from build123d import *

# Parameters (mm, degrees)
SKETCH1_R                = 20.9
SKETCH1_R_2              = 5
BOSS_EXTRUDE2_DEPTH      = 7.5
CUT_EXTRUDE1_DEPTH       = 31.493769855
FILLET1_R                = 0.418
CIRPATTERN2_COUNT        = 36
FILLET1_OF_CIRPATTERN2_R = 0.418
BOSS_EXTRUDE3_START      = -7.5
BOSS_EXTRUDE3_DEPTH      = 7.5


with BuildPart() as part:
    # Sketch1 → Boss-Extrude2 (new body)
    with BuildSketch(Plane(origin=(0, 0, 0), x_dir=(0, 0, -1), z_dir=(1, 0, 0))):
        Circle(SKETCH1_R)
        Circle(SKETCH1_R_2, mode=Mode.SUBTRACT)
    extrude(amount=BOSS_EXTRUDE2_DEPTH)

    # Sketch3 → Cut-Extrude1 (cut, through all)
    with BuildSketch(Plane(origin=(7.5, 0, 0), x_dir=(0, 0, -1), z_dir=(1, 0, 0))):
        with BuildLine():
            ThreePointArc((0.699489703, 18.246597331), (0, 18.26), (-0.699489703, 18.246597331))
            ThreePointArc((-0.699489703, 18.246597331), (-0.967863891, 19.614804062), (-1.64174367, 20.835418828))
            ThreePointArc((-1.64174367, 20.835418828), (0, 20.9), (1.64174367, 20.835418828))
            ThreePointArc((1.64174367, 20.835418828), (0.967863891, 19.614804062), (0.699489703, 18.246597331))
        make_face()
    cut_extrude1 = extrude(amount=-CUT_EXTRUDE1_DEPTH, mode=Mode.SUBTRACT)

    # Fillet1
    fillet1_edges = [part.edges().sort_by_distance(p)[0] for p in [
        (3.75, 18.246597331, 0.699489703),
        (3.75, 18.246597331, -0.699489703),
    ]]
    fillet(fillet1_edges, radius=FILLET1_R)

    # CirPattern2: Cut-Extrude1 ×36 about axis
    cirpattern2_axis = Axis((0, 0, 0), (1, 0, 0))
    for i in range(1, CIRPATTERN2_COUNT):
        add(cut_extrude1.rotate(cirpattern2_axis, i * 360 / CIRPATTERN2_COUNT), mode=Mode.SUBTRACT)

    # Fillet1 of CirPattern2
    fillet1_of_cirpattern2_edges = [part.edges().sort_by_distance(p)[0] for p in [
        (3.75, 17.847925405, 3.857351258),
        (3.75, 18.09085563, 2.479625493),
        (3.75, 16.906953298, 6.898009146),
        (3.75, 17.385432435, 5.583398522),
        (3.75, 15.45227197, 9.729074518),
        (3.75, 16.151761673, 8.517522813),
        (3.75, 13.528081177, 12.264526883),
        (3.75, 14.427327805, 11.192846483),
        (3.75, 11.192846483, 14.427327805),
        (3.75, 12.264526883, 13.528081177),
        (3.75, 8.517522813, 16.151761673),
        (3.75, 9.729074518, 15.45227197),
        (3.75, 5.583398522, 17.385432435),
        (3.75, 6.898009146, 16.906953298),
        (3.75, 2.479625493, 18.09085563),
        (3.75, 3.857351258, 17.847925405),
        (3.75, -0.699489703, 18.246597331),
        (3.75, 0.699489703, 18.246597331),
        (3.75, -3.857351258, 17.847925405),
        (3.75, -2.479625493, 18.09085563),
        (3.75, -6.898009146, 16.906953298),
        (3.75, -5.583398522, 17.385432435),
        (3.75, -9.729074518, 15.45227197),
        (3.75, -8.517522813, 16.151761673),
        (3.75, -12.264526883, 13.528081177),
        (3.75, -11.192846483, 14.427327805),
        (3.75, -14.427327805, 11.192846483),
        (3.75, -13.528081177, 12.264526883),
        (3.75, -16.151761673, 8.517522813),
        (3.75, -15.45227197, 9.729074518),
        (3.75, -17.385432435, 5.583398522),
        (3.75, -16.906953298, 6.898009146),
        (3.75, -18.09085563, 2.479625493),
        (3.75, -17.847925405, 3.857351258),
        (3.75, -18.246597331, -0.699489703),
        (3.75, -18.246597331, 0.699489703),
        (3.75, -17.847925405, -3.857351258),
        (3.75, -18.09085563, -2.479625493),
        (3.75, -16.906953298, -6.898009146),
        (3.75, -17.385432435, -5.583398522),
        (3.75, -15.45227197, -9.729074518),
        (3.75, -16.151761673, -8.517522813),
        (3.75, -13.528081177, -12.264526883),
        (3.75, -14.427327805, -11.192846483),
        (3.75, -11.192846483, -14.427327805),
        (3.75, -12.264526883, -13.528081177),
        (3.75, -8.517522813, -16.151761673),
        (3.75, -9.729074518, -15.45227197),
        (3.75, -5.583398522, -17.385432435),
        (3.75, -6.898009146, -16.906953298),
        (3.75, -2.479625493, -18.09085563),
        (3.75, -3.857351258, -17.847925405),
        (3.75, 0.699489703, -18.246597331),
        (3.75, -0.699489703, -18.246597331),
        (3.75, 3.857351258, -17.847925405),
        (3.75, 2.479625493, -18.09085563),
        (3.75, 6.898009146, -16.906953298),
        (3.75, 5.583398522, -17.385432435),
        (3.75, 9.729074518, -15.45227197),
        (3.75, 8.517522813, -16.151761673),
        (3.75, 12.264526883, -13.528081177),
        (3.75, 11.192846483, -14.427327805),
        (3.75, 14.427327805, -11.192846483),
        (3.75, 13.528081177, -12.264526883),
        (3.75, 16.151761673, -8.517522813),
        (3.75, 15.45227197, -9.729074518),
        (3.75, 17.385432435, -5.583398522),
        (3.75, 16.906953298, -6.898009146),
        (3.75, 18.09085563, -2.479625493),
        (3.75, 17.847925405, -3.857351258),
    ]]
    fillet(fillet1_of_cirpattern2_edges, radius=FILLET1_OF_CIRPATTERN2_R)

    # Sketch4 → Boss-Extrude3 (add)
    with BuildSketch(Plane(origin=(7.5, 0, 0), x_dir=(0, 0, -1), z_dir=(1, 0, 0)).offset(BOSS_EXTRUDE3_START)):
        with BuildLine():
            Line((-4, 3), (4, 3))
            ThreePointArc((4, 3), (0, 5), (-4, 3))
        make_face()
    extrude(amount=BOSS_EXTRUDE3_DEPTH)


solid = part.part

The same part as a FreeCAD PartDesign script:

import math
import FreeCAD as App
import Part
import Sketcher

V = App.Vector
Q = App.Units.Quantity


def edges_at(feature, points):
    """Names of the edges that pass closest to the given points."""
    edges = feature.Shape.Edges
    near = lambda p: min(range(len(edges)), key=lambda i: edges[i].distToShape(Part.Vertex(*p))[0])
    return sorted({f"Edge{near(p) + 1}" for p in points})

doc = App.newDocument("Part")
params = doc.addObject("Spreadsheet::Sheet", "Params")
for row, (alias, value) in enumerate([
    ("sketch1_diameter", "10 mm"),
    ("sketch1_diameter2", "41.8 mm"),
    ("pad1_length", "7.5 mm"),
    ("sketch2_radius", "20.9 mm"),
    ("sketch2_radius2", "18.26 mm"),
    ("fillet_radius", "0.418 mm"),
    ("fillet2_radius", "0.418 mm"),
    ("sketch3_radius", "5 mm"),
    ("sketch3_height", "8 mm"),
    ("pad2_length", "7.5 mm"),
], start=1):
    params.set(f"A{row}", alias)
    params.set(f"B{row}", "=" + value)
    params.setAlias(f"B{row}", alias)

body = doc.addObject("PartDesign::Body", "Body")

sketch1 = doc.addObject("Sketcher::SketchObject", "Sketch")
body.addObject(sketch1)
sketch1.AttachmentSupport = (doc.YZ_Plane, [""])
sketch1.MapMode = "FlatFace"
sketch1.addGeometry(Part.Circle(V(0, 0, 0), V(0, 0, 1), 20.9), False)
sketch1.addGeometry(Part.Circle(V(0, 0, 0), V(0, 0, 1), 5), False)
sketch1.addConstraint(Sketcher.Constraint("Coincident", 0, 3, -1, 1))
sketch1.addConstraint(Sketcher.Constraint("Coincident", 1, 3, -1, 1))
sketch1.addConstraint(Sketcher.Constraint("Diameter", 1, Q("10 mm")))
sketch1.addConstraint(Sketcher.Constraint("Diameter", 0, Q("41.8 mm")))
sketch1.setExpression("Constraints[2]", "Params.sketch1_diameter")
sketch1.setExpression("Constraints[3]", "Params.sketch1_diameter2")
pad1 = doc.addObject("PartDesign::Pad", "Pad")
body.addObject(pad1)
pad1.Profile = sketch1
pad1.setExpression("Length", "Params.pad1_length")

sketch2 = doc.addObject("Sketcher::SketchObject", "Sketch001")
body.addObject(sketch2)
sketch2.AttachmentSupport = (doc.YZ_Plane, [""])
sketch2.MapMode = "FlatFace"
sketch2.AttachmentOffset = App.Placement(V(0, 0, 7.5), App.Rotation())
sketch2.addGeometry(Part.ArcOfCircle(Part.Circle(V(0, 0, 0), V(0, 0, 1), 18.26), math.radians(-2.195379), math.radians(2.195379)), False)
sketch2.addGeometry(Part.ArcOfCircle(Part.Circle(V(18.074026, -5.201117, 0), V(0, 0, 1), 4.504934), math.radians(52.195379), math.radians(87.804621)), False)
sketch2.addGeometry(Part.ArcOfCircle(Part.Circle(V(0, 0, 0), V(0, 0, 1), 20.9), math.radians(-4.505358), math.radians(4.505358)), False)
sketch2.addGeometry(Part.ArcOfCircle(Part.Circle(V(18.074026, 5.201117, 0), V(0, 0, 1), 4.504934), math.radians(-87.804621), math.radians(-52.195379)), False)
sketch2.addConstraint(Sketcher.Constraint("Coincident", 0, 1, 1, 2))
sketch2.addConstraint(Sketcher.Constraint("Coincident", 1, 1, 2, 1))
sketch2.addConstraint(Sketcher.Constraint("Coincident", 2, 2, 3, 2))
sketch2.addConstraint(Sketcher.Constraint("Coincident", 3, 1, 0, 2))
sketch2.addConstraint(Sketcher.Constraint("Coincident", 0, 3, -1, 1))
sketch2.addConstraint(Sketcher.Constraint("Coincident", 2, 3, -1, 1))
sketch2.addConstraint(Sketcher.Constraint("Equal", 1, 3))
sketch2.addConstraint(Sketcher.Constraint("Symmetric", 1, 3, 3, 3, -1))
sketch2.addConstraint(Sketcher.Constraint("Radius", 2, Q("20.9 mm")))
sketch2.addConstraint(Sketcher.Constraint("Radius", 0, Q("18.26 mm")))
sketch2.addConstraint(Sketcher.Constraint("Radius", 1, Q("4.504934 mm")))
sketch2.addConstraint(Sketcher.Constraint("DistanceY", 0, 1, -1, 1, Q("0.69949 mm")))
sketch2.addConstraint(Sketcher.Constraint("DistanceX", -1, 1, 1, 1, Q("20.835419 mm")))
sketch2.setExpression("Constraints[8]", "Params.sketch2_radius")
sketch2.setExpression("Constraints[9]", "Params.sketch2_radius2")
pocket1 = doc.addObject("PartDesign::Pocket", "Pocket")
body.addObject(pocket1)
pocket1.Profile = sketch2
pocket1.Type = "ThroughAll"
doc.recompute()

fillet = doc.addObject("PartDesign::Fillet", "Fillet")
body.addObject(fillet)
fillet.Base = (pocket1, edges_at(pocket1, [(3.75, 18.247, 0.699), (3.75, 18.247, -0.699)]))
fillet.setExpression("Radius", "Params.fillet_radius")
doc.recompute()

polarpattern = doc.addObject("PartDesign::PolarPattern", "PolarPattern")
body.addObject(polarpattern)
polarpattern.Originals = [pocket1]
polarpattern.Axis = (doc.X_Axis, [""])
polarpattern.Angle = 360
polarpattern.Occurrences = 36
body.Tip = polarpattern
doc.recompute()

fillet2 = doc.addObject("PartDesign::Fillet", "Fillet001")
body.addObject(fillet2)
fillet2.Base = (polarpattern, edges_at(polarpattern, [
    (3.75, 17.848, 3.857),
    (3.75, 18.091, 2.48),
    (3.75, 16.907, 6.898),
    (3.75, 17.385, 5.583),
    (3.75, 15.452, 9.729),
    (3.75, 16.152, 8.518),
    (3.75, 13.528, 12.265),
    (3.75, 14.427, 11.193),
    (3.75, 11.193, 14.427),
    (3.75, 12.265, 13.528),
    (3.75, 8.518, 16.152),
    (3.75, 9.729, 15.452),
    (3.75, 5.583, 17.385),
    (3.75, 6.898, 16.907),
    (3.75, 2.48, 18.091),
    (3.75, 3.857, 17.848),
    (3.75, -0.699, 18.247),
    (3.75, 0.699, 18.247),
    (3.75, -3.857, 17.848),
    (3.75, -2.48, 18.091),
    (3.75, -6.898, 16.907),
    (3.75, -5.583, 17.385),
    (3.75, -9.729, 15.452),
    (3.75, -8.518, 16.152),
    (3.75, -12.265, 13.528),
    (3.75, -11.193, 14.427),
    (3.75, -14.427, 11.193),
    (3.75, -13.528, 12.265),
    (3.75, -16.152, 8.518),
    (3.75, -15.452, 9.729),
    (3.75, -17.385, 5.583),
    (3.75, -16.907, 6.898),
    (3.75, -18.091, 2.48),
    (3.75, -17.848, 3.857),
    (3.75, -18.247, -0.699),
    (3.75, -18.247, 0.699),
    (3.75, -17.848, -3.857),
    (3.75, -18.091, -2.48),
    (3.75, -16.907, -6.898),
    (3.75, -17.385, -5.583),
    (3.75, -15.452, -9.729),
    (3.75, -16.152, -8.518),
    (3.75, -13.528, -12.265),
    (3.75, -14.427, -11.193),
    (3.75, -11.193, -14.427),
    (3.75, -12.265, -13.528),
    (3.75, -8.518, -16.152),
    (3.75, -9.729, -15.452),
    (3.75, -5.583, -17.385),
    (3.75, -6.898, -16.907),
    (3.75, -2.48, -18.091),
    (3.75, -3.857, -17.848),
    (3.75, 0.699, -18.247),
    (3.75, -0.699, -18.247),
    (3.75, 3.857, -17.848),
    (3.75, 2.48, -18.091),
    (3.75, 6.898, -16.907),
    (3.75, 5.583, -17.385),
    (3.75, 9.729, -15.452),
    (3.75, 8.518, -16.152),
    (3.75, 12.265, -13.528),
    (3.75, 11.193, -14.427),
    (3.75, 14.427, -11.193),
    (3.75, 13.528, -12.265),
    (3.75, 16.152, -8.518),
    (3.75, 15.452, -9.729),
    (3.75, 17.385, -5.583),
    (3.75, 16.907, -6.898),
    (3.75, 18.091, -2.48),
    (3.75, 17.848, -3.857),
]))
fillet2.setExpression("Radius", "Params.fillet2_radius")

sketch3 = doc.addObject("Sketcher::SketchObject", "Sketch002")
body.addObject(sketch3)
sketch3.AttachmentSupport = (doc.YZ_Plane, [""])
sketch3.MapMode = "FlatFace"
sketch3.addGeometry(Part.LineSegment(V(3, 4, 0), V(3, -4, 0)), False)
sketch3.addGeometry(Part.ArcOfCircle(Part.Circle(V(0, 0, 0), V(0, 0, 1), 5), math.radians(-53.130102), math.radians(53.130102)), False)
sketch3.addConstraint(Sketcher.Constraint("Coincident", 0, 1, 1, 2))
sketch3.addConstraint(Sketcher.Constraint("Coincident", 1, 1, 0, 2))
sketch3.addConstraint(Sketcher.Constraint("Vertical", 0))
sketch3.addConstraint(Sketcher.Constraint("Coincident", 1, 3, -1, 1))
sketch3.addConstraint(Sketcher.Constraint("Radius", 1, Q("5 mm")))
sketch3.addConstraint(Sketcher.Constraint("DistanceY", 0, 2, 0, 1, Q("8 mm")))
sketch3.setExpression("Constraints[4]", "Params.sketch3_radius")
sketch3.setExpression("Constraints[5]", "Params.sketch3_height")
pad2 = doc.addObject("PartDesign::Pad", "Pad001")
body.addObject(pad2)
pad2.Profile = sketch3
pad2.setExpression("Length", "Params.pad2_length")

doc.recompute()
